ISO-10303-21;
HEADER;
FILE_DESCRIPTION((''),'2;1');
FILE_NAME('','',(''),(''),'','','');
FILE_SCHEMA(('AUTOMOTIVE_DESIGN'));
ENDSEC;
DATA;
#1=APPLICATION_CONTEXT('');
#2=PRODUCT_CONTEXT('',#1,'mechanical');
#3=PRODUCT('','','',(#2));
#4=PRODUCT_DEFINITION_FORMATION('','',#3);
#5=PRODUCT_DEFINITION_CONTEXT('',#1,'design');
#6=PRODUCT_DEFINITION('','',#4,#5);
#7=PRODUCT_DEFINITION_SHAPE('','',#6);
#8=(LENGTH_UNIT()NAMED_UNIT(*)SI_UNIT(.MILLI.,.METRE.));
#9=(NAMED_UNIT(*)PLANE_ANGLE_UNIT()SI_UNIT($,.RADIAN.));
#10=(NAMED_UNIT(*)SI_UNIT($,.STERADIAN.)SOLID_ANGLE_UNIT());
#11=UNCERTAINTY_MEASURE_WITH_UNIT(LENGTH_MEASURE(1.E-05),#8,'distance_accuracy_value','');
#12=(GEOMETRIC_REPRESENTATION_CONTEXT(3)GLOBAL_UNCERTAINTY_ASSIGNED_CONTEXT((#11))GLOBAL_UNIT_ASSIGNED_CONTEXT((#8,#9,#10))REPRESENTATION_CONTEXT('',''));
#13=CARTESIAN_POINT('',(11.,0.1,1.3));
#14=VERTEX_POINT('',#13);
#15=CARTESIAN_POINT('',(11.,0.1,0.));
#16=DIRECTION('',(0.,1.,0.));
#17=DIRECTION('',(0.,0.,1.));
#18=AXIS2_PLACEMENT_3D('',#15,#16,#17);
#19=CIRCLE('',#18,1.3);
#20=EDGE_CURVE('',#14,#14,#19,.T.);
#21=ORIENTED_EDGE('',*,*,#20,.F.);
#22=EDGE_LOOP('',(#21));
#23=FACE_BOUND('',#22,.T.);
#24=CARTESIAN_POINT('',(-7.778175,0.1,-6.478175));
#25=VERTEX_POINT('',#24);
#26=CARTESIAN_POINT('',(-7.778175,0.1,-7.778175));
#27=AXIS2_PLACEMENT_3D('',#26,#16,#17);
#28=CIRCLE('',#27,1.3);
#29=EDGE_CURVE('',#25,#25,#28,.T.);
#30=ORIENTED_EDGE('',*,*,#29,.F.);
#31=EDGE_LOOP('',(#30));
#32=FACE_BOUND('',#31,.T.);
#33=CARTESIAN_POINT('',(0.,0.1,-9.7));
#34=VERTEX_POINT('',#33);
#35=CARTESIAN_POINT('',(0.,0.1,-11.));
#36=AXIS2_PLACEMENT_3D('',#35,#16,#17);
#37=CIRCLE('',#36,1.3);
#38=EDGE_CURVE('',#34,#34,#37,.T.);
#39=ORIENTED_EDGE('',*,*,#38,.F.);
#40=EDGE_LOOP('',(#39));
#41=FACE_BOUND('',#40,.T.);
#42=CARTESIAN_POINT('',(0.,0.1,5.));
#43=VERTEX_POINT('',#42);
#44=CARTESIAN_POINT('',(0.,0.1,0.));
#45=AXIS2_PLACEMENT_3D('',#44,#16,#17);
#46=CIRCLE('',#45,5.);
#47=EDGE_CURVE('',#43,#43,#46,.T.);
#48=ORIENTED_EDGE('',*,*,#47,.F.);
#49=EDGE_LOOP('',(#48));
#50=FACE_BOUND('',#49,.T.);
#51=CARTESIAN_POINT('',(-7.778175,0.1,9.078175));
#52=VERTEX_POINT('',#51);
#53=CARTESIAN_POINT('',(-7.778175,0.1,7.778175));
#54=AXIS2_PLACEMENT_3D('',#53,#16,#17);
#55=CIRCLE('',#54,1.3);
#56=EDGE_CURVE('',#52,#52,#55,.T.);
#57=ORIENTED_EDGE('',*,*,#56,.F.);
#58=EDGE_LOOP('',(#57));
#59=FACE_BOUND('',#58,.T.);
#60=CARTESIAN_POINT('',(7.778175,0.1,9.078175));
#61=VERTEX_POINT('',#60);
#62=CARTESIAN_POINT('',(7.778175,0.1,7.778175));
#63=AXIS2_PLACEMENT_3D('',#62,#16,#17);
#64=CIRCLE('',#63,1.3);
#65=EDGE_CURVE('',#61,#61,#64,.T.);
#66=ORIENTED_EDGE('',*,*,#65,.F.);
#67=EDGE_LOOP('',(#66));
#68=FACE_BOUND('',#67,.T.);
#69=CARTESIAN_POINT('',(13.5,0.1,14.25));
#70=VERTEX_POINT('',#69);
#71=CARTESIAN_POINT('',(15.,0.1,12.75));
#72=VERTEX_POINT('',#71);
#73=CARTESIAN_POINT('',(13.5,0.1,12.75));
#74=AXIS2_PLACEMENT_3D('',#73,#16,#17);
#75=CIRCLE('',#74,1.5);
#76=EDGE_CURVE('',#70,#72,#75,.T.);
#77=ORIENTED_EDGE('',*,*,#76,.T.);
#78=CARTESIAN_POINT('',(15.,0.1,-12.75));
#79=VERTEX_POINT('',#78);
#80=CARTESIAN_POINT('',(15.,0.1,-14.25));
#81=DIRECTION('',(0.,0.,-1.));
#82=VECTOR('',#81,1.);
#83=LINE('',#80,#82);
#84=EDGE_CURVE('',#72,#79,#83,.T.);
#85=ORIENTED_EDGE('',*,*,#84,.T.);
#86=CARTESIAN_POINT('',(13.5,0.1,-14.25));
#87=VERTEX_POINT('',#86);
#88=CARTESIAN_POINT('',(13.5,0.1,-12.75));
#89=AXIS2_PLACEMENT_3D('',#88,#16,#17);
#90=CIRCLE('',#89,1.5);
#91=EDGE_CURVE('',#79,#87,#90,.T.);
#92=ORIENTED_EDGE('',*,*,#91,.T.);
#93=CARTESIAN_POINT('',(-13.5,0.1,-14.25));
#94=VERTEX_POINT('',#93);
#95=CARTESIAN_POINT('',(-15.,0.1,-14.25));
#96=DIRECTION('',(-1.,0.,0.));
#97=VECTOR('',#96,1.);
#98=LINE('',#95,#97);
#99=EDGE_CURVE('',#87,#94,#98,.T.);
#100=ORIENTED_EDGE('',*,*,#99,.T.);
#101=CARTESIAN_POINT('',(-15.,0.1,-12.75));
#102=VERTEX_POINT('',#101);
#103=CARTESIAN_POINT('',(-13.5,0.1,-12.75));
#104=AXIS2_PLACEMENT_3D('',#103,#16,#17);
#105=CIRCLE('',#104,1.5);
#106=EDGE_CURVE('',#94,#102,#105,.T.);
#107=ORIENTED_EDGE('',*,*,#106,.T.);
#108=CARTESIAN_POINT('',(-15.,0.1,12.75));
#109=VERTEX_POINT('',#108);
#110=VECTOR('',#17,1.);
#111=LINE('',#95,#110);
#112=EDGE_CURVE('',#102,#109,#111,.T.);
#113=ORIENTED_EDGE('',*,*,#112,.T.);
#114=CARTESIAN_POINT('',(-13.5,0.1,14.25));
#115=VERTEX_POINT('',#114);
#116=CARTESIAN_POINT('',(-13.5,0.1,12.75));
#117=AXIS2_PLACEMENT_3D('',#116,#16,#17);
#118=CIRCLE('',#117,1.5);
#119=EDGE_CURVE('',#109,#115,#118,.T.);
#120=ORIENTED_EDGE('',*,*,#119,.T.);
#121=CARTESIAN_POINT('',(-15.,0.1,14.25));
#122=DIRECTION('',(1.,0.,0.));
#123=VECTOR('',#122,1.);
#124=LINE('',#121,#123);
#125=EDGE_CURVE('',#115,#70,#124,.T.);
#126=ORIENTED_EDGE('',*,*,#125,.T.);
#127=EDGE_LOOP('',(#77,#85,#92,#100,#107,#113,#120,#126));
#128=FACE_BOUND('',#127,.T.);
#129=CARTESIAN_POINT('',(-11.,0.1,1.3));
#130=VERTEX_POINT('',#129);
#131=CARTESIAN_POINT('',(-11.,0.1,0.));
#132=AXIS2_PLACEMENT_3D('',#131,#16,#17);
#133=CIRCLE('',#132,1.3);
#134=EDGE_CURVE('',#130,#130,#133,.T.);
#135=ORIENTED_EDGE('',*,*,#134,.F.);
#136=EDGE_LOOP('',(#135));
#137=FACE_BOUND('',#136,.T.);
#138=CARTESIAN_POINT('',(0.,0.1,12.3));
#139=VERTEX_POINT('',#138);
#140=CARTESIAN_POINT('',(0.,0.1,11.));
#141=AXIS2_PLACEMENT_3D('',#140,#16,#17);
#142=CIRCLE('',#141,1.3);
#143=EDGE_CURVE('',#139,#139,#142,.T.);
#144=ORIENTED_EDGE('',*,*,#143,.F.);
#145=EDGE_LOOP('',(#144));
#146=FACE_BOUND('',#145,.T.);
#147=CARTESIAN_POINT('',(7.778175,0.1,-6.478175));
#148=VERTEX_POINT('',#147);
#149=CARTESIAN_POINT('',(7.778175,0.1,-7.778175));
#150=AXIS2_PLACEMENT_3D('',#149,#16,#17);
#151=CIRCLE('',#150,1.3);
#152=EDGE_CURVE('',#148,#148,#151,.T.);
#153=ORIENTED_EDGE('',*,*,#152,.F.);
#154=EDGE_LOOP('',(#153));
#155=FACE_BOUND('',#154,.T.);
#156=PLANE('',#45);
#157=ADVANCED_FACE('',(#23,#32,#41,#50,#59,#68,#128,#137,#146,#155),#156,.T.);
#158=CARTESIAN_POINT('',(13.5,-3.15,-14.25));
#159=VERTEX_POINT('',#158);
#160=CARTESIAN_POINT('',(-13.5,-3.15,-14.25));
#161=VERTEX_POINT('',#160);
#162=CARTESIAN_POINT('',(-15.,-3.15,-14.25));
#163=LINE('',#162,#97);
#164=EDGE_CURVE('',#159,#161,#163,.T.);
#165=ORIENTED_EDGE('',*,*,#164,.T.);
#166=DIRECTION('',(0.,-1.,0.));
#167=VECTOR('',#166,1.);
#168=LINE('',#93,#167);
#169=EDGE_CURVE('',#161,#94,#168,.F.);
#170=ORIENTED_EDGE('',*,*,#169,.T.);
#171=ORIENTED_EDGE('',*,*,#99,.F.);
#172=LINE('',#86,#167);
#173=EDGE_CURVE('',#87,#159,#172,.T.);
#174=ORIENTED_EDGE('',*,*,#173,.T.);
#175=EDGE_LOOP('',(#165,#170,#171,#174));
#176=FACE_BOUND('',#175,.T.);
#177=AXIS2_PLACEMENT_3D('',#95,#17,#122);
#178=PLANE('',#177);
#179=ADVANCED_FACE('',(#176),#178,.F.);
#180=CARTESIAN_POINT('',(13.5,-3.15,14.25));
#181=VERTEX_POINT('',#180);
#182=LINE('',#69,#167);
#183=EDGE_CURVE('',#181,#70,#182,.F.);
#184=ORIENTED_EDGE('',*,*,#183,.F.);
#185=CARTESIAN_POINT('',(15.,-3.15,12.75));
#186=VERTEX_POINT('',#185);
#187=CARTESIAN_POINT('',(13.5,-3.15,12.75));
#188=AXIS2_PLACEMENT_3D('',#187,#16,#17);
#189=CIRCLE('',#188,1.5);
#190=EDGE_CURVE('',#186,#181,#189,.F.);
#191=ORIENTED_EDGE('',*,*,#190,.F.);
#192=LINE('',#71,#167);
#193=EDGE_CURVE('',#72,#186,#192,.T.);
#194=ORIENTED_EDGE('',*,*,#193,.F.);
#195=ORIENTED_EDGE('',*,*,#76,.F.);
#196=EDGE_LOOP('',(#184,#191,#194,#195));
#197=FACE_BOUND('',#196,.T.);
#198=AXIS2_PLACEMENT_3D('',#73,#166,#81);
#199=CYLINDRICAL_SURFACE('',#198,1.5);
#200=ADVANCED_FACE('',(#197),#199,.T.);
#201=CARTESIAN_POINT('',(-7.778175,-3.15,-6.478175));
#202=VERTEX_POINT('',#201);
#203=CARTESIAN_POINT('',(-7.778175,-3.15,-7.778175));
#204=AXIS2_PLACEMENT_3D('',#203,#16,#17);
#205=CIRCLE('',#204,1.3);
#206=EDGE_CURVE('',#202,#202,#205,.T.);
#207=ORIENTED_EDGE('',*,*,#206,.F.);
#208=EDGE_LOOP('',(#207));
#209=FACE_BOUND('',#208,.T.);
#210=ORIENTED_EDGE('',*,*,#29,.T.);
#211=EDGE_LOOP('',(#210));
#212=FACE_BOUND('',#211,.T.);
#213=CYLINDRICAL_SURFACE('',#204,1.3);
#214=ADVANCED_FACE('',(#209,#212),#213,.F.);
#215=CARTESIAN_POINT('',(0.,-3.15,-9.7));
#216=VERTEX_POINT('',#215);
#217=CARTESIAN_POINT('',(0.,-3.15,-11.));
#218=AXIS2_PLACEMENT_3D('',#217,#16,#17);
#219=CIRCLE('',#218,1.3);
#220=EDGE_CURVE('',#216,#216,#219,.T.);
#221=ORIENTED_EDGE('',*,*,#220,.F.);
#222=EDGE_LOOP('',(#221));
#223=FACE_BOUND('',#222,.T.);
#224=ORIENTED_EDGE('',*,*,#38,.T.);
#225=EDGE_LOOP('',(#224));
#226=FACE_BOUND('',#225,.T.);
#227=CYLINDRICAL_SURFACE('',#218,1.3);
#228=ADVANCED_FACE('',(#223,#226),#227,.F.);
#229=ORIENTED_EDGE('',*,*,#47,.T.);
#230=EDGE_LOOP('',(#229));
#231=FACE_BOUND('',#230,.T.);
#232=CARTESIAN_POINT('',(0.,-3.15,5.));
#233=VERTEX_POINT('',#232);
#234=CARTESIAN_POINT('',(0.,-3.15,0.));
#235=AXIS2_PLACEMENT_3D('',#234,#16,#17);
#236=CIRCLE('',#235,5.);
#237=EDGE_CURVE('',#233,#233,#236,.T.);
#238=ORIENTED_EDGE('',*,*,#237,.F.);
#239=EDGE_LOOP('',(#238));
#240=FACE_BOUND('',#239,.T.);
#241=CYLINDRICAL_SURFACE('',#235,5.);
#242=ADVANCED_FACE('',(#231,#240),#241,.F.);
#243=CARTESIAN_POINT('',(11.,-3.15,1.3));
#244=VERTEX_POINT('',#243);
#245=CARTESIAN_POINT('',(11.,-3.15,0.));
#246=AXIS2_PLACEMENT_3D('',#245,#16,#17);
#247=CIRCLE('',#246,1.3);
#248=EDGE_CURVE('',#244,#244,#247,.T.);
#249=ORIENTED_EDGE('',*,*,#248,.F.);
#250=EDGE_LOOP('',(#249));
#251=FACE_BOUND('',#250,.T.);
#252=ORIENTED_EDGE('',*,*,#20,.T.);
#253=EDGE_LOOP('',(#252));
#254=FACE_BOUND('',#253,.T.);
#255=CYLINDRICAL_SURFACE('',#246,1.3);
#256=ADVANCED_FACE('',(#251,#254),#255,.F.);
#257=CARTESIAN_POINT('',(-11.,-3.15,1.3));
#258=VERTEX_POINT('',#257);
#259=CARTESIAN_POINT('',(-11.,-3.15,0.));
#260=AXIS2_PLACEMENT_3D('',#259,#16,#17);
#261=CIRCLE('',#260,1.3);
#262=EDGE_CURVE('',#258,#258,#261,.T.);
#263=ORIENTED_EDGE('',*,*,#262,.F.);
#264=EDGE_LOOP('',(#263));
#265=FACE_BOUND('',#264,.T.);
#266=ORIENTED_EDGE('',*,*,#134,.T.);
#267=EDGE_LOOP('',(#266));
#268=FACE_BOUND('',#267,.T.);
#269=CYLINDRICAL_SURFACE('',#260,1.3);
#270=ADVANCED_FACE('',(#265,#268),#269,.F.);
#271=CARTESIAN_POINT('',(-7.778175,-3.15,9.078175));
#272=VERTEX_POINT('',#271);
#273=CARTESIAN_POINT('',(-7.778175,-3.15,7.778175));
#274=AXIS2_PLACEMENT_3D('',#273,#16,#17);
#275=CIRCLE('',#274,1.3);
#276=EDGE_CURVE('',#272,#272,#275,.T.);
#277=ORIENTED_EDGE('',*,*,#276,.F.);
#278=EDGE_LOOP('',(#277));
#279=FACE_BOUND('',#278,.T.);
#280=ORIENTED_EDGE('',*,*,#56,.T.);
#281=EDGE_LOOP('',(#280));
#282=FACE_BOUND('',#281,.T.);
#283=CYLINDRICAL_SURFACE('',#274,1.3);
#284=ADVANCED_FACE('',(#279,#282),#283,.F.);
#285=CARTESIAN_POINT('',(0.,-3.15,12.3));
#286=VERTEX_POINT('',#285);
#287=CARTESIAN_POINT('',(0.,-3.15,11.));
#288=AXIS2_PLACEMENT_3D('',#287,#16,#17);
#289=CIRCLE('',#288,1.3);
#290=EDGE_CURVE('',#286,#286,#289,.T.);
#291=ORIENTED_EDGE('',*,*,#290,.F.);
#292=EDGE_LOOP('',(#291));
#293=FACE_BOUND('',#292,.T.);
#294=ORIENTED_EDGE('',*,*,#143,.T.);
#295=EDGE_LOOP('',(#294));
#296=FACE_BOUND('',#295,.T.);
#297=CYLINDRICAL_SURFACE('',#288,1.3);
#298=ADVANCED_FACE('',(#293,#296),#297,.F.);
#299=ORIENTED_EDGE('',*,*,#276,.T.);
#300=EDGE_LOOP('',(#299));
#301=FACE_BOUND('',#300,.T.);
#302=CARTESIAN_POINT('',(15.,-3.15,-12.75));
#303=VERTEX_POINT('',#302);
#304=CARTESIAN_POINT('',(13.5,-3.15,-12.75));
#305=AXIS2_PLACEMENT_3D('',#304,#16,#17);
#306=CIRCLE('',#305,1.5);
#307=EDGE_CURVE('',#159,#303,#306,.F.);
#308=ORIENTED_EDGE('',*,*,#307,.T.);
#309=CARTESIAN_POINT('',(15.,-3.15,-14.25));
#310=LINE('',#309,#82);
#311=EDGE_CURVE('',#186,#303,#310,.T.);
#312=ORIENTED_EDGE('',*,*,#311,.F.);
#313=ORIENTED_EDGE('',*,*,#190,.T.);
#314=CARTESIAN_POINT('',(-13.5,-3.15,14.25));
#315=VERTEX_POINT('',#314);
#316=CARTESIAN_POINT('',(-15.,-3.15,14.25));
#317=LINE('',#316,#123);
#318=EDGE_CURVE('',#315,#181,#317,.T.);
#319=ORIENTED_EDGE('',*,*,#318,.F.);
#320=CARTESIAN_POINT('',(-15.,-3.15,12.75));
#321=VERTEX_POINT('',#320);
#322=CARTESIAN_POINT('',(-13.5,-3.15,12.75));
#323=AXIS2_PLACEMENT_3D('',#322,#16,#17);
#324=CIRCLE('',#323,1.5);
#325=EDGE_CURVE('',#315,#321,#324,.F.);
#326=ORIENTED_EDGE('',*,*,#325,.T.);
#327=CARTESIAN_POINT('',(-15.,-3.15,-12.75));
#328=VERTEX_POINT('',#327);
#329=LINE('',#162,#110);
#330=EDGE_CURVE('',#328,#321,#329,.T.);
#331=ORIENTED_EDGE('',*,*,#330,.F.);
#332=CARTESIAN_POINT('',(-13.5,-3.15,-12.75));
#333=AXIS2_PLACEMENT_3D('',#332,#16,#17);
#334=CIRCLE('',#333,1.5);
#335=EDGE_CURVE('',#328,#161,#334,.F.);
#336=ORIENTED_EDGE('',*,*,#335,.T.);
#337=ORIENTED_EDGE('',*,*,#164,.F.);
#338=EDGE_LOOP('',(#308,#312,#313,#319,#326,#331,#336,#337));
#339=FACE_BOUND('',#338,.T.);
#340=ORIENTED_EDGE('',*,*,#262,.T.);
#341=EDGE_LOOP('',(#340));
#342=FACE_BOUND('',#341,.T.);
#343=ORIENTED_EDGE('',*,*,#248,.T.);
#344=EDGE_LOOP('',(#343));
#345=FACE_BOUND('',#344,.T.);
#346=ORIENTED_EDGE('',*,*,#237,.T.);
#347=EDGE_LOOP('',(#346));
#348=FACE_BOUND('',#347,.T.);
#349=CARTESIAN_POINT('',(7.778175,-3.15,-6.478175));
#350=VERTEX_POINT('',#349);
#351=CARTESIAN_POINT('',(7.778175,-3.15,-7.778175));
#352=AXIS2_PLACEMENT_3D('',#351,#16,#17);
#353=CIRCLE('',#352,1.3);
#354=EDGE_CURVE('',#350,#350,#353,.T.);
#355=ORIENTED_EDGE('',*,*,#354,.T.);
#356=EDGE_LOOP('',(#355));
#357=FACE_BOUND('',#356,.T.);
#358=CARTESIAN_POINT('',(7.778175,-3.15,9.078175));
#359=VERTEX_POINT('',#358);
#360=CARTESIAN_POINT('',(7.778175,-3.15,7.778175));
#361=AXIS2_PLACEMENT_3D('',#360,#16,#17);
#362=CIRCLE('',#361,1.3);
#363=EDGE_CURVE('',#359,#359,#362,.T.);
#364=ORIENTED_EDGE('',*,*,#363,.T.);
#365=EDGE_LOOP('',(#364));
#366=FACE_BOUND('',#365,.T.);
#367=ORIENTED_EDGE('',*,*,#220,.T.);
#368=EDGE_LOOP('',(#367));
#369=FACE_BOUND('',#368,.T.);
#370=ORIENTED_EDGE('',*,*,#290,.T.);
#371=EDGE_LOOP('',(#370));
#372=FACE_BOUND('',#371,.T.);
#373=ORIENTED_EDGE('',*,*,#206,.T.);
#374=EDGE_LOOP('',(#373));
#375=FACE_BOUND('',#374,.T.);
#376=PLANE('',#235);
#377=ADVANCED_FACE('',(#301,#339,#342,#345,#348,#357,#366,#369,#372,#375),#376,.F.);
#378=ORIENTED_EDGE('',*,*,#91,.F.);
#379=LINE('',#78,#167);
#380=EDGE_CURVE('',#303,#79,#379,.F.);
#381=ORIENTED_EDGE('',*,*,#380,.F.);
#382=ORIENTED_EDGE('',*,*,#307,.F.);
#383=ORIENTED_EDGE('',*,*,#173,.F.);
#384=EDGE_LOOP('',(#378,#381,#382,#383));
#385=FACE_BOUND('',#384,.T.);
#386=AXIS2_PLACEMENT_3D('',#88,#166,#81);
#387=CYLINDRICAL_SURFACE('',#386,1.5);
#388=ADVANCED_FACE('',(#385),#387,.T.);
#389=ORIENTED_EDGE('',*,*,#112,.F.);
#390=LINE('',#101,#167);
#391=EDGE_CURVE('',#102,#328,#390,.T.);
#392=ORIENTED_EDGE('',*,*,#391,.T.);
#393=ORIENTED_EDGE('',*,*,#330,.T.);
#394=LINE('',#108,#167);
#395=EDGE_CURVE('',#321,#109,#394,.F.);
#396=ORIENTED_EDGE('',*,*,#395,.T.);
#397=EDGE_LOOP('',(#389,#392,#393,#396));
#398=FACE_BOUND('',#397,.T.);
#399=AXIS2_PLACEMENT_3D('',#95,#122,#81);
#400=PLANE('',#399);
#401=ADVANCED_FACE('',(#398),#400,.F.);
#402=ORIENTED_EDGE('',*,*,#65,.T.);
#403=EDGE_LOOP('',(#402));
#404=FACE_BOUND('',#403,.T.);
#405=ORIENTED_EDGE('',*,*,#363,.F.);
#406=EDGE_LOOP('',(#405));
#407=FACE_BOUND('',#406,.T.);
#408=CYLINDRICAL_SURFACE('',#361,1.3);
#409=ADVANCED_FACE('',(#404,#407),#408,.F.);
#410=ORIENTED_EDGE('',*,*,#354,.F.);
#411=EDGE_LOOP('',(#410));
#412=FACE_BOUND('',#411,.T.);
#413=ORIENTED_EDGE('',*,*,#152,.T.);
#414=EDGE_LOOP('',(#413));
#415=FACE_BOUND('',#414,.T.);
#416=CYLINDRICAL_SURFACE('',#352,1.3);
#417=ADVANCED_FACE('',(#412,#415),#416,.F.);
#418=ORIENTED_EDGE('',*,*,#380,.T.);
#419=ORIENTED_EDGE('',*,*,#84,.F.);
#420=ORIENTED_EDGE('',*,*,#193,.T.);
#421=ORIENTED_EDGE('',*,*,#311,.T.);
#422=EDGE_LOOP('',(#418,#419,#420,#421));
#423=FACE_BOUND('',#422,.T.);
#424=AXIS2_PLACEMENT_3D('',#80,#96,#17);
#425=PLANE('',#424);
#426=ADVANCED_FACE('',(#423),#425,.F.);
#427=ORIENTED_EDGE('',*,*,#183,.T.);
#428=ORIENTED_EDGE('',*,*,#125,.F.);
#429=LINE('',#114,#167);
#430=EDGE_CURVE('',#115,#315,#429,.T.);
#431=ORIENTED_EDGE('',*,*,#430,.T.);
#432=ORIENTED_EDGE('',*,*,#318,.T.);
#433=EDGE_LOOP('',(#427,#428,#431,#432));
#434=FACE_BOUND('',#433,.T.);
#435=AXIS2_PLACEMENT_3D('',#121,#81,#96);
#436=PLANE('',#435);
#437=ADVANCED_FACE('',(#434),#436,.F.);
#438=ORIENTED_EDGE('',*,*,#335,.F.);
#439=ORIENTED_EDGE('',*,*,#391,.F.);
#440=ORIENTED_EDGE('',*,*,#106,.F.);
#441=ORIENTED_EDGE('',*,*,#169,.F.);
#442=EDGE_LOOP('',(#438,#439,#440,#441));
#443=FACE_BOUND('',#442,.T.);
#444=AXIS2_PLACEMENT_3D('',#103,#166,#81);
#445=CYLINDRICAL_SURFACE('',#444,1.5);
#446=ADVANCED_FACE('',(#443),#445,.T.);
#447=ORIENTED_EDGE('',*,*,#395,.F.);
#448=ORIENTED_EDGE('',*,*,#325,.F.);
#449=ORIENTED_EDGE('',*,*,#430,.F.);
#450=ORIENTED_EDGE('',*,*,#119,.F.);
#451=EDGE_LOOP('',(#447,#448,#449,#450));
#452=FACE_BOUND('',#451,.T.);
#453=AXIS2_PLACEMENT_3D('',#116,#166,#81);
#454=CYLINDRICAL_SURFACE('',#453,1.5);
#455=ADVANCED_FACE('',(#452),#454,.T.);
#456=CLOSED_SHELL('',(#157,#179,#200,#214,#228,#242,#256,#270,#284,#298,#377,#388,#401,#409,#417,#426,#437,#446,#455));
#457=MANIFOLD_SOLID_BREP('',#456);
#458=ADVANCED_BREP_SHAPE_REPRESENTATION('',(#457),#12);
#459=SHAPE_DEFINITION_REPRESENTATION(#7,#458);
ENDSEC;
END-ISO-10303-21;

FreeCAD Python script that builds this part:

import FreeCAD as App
import Part
import Sketcher

V = App.Vector


def edges_at(feature, points):
    """Names of the edges that pass closest to the given points."""
    edges = feature.Shape.Edges
    near = lambda p: min(range(len(edges)), key=lambda i: edges[i].distToShape(Part.Vertex(*p))[0])
    return sorted({f"Edge{near(p) + 1}" for p in points})


def add_polygon(sketch, points):
    """Adds a closed chain of lines whose ends are joined by coincident constraints."""
    first, n = sketch.GeometryCount, len(points)
    for a, b in zip(points, points[1:] + points[:1]):
        sketch.addGeometry(Part.LineSegment(App.Vector(*a, 0), App.Vector(*b, 0)), False)
    for i in range(n):
        sketch.addConstraint(Sketcher.Constraint("Coincident", first + i, 2, first + (i + 1) % n, 1))

doc = App.newDocument("Part")
body = doc.addObject("PartDesign::Body", "Body")

sketch1 = body.newObject("Sketcher::SketchObject", "Sketch")
sketch1.AttachmentSupport = (doc.getObject("XZ_Plane"), [""])
sketch1.MapMode = "FlatFace"
add_polygon(sketch1, [(-15, -14), (-15, 14), (15, 14), (15, -14)])
sketch1.addConstraint(Sketcher.Constraint("Vertical", 0))
sketch1.addConstraint(Sketcher.Constraint("Horizontal", 1))
sketch1.addConstraint(Sketcher.Constraint("Vertical", 2))
sketch1.addConstraint(Sketcher.Constraint("Horizontal", 3))
sketch1.addConstraint(Sketcher.Constraint("Symmetric", 0, 2, 2, 2, -1, 1))
sketch1.addConstraint(Sketcher.Constraint("DistanceX", 1, 1, 1, 2, 30.0))
sketch1.addConstraint(Sketcher.Constraint("DistanceY", 0, 1, 0, 2, 28.5))
pad1 = body.newObject("PartDesign::Pad", "Pad")
pad1.Profile = sketch1
pad1.Type = "TwoLengths"
pad1.Length = 0.1
pad1.Length2 = 3.15
pad1.Reversed = True

sketch2 = body.newObject("Sketcher::SketchObject", "Sketch001")
sketch2.AttachmentSupport = (doc.getObject("XZ_Plane"), [""])
sketch2.MapMode = "FlatFace"
sketch2.AttachmentOffset = App.Placement(V(0, 0, -0.1), App.Rotation())
sketch2.addGeometry(Part.Circle(V(0, 0, 0), V(0, 0, 1), 5), False)
sketch2.addGeometry(Part.Circle(V(0, -11, 0), V(0, 0, 1), 1.3), False)
sketch2.addGeometry(Part.Circle(V(7.8, -7.8, 0), V(0, 0, 1), 1.3), False)
sketch2.addGeometry(Part.Circle(V(11, 0, 0), V(0, 0, 1), 1.3), False)
sketch2.addGeometry(Part.Circle(V(7.8, 7.8, 0), V(0, 0, 1), 1.3), False)
sketch2.addGeometry(Part.Circle(V(0, 11, 0), V(0, 0, 1), 1.3), False)
sketch2.addGeometry(Part.Circle(V(-7.8, 7.8, 0), V(0, 0, 1), 1.3), False)
sketch2.addGeometry(Part.Circle(V(-11, 0, 0), V(0, 0, 1), 1.3), False)
sketch2.addGeometry(Part.Circle(V(-7.8, -7.8, 0), V(0, 0, 1), 1.3), False)
sketch2.addConstraint(Sketcher.Constraint("Coincident", 0, 3, -1, 1))
sketch2.addConstraint(Sketcher.Constraint("Equal", 1, 2))
sketch2.addConstraint(Sketcher.Constraint("Equal", 2, 3))
sketch2.addConstraint(Sketcher.Constraint("Equal", 3, 4))
sketch2.addConstraint(Sketcher.Constraint("Equal", 4, 5))
sketch2.addConstraint(Sketcher.Constraint("Equal", 5, 6))
sketch2.addConstraint(Sketcher.Constraint("Equal", 6, 7))
sketch2.addConstraint(Sketcher.Constraint("Equal", 7, 8))
sketch2.addConstraint(Sketcher.Constraint("Symmetric", 1, 3, 5, 3, -1, 1))
sketch2.addConstraint(Sketcher.Constraint("Symmetric", 2, 3, 6, 3, -1, 1))
sketch2.addConstraint(Sketcher.Constraint("Symmetric", 3, 3, 7, 3, -1, 1))
sketch2.addConstraint(Sketcher.Constraint("Symmetric", 4, 3, 8, 3, -1, 1))
sketch2.addConstraint(Sketcher.Constraint("Symmetric", 4, 3, 6, 3, -2))
sketch2.addConstraint(Sketcher.Constraint("PointOnObject", 1, 3, -2))
sketch2.addConstraint(Sketcher.Constraint("PointOnObject", 3, 3, -1))
sketch2.addConstraint(Sketcher.Constraint("Diameter", 0, 10.0))
sketch2.addConstraint(Sketcher.Constraint("Diameter", 1, 2.6))
sketch2.addConstraint(Sketcher.Constraint("DistanceY", 1, 3, -1, 1, 11.0))
sketch2.addConstraint(Sketcher.Constraint("DistanceX", -1, 1, 3, 3, 11.0))
sketch2.addConstraint(Sketcher.Constraint("DistanceY", 2, 3, 4, 3, 15.556349))
sketch2.addConstraint(Sketcher.Constraint("DistanceX", 6, 3, 4, 3, 15.556349))
pocket1 = body.newObject("PartDesign::Pocket", "Pocket")
pocket1.Profile = sketch2
pocket1.Type = "ThroughAll"
pocket1.Reversed = True
doc.recompute()

fillet = body.newObject("PartDesign::Fillet", "Fillet")
fillet.Base = (pocket1, edges_at(pocket1, [
    (-15, -1.525, -14.25),
    (15, -1.525, -14.25),
    (15, -1.525, 14.25),
    (-15, -1.525, 14.25),
]))
fillet.Radius = 1.5

doc.recompute()
